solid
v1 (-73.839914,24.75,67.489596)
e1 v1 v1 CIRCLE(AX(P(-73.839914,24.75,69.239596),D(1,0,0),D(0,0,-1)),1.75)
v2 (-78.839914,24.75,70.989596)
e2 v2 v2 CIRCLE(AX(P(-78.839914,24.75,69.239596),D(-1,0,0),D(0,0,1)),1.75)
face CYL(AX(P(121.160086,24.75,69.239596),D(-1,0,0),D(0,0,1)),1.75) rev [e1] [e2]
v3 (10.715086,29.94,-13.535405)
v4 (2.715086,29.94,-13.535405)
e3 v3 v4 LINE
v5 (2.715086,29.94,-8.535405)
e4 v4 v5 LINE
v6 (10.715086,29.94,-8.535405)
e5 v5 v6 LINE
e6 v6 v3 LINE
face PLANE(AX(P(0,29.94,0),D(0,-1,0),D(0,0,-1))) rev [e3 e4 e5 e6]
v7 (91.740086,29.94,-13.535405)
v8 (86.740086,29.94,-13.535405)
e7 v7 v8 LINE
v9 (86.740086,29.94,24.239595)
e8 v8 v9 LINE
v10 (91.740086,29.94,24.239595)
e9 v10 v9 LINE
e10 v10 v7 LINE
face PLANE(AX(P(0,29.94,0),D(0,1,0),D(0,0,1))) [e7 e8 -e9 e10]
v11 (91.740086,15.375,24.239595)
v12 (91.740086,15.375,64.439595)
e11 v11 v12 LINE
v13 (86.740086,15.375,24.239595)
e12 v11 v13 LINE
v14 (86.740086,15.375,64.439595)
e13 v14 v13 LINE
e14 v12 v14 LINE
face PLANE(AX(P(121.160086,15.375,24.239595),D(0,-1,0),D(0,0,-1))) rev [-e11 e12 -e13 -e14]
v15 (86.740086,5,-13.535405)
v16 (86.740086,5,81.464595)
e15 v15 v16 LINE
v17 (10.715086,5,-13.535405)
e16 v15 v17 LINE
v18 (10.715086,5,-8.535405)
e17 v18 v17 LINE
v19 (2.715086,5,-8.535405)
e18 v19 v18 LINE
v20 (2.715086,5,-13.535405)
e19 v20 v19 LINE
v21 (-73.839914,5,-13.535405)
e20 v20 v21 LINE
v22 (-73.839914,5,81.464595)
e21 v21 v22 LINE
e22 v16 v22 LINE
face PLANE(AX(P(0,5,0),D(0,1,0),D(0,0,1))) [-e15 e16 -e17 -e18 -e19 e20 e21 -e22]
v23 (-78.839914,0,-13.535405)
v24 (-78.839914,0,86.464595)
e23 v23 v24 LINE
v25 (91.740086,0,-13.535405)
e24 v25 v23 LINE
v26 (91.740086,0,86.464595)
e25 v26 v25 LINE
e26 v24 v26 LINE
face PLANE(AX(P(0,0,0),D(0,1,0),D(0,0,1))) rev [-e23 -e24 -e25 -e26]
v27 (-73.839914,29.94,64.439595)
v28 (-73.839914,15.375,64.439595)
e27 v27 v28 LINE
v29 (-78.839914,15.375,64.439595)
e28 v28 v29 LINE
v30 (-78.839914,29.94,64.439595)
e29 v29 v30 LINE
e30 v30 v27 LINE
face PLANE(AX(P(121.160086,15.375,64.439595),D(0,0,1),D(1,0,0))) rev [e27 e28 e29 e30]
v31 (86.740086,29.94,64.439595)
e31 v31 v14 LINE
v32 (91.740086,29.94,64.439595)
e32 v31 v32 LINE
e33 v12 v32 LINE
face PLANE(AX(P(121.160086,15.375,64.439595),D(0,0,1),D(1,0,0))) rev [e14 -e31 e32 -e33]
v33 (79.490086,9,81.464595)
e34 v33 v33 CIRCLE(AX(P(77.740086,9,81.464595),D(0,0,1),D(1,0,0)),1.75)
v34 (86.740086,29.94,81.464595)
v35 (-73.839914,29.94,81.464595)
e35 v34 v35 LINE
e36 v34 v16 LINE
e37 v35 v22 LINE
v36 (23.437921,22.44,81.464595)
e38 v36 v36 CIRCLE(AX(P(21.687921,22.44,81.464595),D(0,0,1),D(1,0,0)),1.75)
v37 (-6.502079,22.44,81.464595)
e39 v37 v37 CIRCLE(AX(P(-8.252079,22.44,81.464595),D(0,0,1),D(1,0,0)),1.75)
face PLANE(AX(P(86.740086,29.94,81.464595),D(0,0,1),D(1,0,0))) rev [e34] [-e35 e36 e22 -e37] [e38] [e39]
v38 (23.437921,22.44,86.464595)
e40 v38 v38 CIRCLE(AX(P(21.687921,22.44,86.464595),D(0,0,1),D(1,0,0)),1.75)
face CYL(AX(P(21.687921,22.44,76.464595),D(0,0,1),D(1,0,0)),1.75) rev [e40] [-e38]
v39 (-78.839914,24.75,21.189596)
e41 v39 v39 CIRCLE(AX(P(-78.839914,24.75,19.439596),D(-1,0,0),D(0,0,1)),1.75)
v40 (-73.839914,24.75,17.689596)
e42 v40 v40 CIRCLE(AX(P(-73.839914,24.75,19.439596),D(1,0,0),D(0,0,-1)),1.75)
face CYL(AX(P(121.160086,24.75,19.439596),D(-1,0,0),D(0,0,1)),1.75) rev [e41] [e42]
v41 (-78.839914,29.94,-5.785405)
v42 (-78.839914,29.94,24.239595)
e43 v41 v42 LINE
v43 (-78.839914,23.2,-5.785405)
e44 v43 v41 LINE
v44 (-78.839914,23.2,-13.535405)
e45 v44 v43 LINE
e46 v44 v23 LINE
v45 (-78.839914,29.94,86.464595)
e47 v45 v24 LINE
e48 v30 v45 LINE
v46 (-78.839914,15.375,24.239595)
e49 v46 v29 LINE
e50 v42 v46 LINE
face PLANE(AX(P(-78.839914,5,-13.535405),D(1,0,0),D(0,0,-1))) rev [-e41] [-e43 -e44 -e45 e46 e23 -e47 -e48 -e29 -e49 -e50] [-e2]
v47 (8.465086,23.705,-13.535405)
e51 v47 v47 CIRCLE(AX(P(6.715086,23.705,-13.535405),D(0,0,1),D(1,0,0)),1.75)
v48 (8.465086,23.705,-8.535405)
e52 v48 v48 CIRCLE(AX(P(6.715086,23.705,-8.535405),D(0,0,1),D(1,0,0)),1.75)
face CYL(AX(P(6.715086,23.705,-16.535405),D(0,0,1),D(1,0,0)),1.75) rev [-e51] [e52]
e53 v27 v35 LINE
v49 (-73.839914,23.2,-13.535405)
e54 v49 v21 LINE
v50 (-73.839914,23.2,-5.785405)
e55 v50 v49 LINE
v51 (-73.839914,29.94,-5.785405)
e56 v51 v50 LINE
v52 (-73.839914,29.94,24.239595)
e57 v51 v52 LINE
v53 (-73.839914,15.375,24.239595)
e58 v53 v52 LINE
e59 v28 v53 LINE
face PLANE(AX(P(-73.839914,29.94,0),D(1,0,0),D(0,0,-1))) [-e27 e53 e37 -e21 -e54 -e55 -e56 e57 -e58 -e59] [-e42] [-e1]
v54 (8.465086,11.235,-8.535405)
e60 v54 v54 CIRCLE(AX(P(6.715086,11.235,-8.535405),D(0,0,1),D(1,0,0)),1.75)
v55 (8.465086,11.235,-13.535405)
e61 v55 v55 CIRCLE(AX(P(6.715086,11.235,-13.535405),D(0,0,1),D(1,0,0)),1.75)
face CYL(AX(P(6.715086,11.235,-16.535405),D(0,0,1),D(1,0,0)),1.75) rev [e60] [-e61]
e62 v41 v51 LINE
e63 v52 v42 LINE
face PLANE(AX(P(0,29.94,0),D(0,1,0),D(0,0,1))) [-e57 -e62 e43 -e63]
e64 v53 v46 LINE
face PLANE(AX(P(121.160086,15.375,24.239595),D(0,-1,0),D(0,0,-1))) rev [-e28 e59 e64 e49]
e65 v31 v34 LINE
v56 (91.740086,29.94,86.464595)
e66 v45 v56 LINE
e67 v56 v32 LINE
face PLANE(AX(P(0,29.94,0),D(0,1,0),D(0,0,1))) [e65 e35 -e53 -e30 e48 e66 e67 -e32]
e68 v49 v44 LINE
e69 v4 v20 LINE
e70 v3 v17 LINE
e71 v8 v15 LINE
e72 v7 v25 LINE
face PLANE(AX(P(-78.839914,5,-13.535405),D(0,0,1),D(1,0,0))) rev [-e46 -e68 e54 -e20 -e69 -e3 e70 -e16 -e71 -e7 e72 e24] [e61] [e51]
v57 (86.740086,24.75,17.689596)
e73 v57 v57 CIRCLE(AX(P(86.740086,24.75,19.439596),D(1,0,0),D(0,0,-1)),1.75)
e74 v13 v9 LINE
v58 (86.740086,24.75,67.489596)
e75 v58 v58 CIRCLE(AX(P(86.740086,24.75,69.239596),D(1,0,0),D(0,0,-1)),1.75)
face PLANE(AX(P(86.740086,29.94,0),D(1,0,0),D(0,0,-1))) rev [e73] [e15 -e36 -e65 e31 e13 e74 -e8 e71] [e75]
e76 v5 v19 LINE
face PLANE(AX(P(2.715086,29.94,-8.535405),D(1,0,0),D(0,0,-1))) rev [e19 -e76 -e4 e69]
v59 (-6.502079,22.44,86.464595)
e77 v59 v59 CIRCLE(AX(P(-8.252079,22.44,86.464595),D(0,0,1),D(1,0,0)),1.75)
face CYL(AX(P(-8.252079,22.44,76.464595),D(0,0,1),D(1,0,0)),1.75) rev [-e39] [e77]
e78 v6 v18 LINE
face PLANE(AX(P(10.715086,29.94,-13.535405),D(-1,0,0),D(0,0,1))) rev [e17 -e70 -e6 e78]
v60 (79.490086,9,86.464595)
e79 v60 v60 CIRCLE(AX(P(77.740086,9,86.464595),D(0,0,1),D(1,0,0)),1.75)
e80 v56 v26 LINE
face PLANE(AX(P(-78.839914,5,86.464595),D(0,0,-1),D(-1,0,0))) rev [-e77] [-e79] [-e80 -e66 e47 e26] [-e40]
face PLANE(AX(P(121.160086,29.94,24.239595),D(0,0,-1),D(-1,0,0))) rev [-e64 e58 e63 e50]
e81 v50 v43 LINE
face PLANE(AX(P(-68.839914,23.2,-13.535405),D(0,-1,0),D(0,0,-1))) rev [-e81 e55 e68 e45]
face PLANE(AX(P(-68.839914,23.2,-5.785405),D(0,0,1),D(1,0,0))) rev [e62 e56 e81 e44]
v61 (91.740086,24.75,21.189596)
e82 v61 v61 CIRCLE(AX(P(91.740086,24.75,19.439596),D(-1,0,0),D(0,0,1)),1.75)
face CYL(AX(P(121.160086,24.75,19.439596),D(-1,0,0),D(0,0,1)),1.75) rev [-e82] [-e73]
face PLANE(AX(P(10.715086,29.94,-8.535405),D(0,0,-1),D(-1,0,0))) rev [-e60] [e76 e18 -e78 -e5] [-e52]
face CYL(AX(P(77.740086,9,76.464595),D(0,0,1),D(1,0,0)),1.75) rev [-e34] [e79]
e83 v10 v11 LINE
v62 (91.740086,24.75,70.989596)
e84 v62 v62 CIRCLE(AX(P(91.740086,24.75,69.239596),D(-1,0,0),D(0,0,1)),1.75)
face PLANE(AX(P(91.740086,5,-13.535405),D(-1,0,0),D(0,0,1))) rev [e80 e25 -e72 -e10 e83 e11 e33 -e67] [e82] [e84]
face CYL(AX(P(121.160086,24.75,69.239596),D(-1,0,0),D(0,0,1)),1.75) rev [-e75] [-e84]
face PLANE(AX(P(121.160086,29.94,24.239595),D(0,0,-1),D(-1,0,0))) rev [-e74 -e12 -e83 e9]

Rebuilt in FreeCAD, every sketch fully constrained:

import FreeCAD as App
import Part
import Sketcher

V = App.Vector
Q = App.Units.Quantity


def add_polygon(sketch, points):
    """Adds a closed chain of lines whose ends are joined by coincident constraints."""
    first, n = sketch.GeometryCount, len(points)
    for a, b in zip(points, points[1:] + points[:1]):
        sketch.addGeometry(Part.LineSegment(App.Vector(*a, 0), App.Vector(*b, 0)), False)
    for i in range(n):
        sketch.addConstraint(Sketcher.Constraint("Coincident", first + i, 2, first + (i + 1) % n, 1))

doc = App.newDocument("Part")
body = doc.addObject("PartDesign::Body", "Body")

# Sketch on XZ plane
sketch1 = body.newObject("Sketcher::SketchObject", "Sketch")
sketch1.AttachmentSupport = (doc.getObject("XZ_Plane"), [""])
sketch1.MapMode = "FlatFace"
add_polygon(sketch1, [(-79, -14), (-79, 86), (92, 86), (92, -14)])  # lines 0-3
sketch1.addConstraint(Sketcher.Constraint("Vertical", 0))
sketch1.addConstraint(Sketcher.Constraint("Horizontal", 1))
sketch1.addConstraint(Sketcher.Constraint("Vertical", 2))
sketch1.addConstraint(Sketcher.Constraint("Horizontal", 3))
sketch1.addConstraint(Sketcher.Constraint("DistanceY", 0, 1, 0, 2, Q("100 mm")))
sketch1.addConstraint(Sketcher.Constraint("DistanceX", 1, 1, 1, 2, Q("170.58 mm")))
sketch1.addConstraint(Sketcher.Constraint("DistanceX", 0, 2, -1, 1, Q("78.839914 mm")))
sketch1.addConstraint(Sketcher.Constraint("DistanceY", -1, 1, 0, 2, Q("86.464595 mm")))
pad1 = body.newObject("PartDesign::Pad", "Pad")
pad1.Profile = sketch1
pad1.Length = 5
pad1.Reversed = True

# Sketch on XZ plane
sketch2 = body.newObject("Sketcher::SketchObject", "Sketch001")
sketch2.AttachmentSupport = (doc.getObject("XZ_Plane"), [""])
sketch2.MapMode = "FlatFace"
sketch2.AttachmentOffset = App.Placement(V(0, 0, -5), App.Rotation())
add_polygon(sketch2, [(87, -14), (87, 86), (92, 86), (92, -14)])  # lines 0-3
add_polygon(sketch2, [(-79, -14), (-79, 86), (-74, 86), (-74, -14)])  # lines 4-7
sketch2.addConstraint(Sketcher.Constraint("Vertical", 0))
sketch2.addConstraint(Sketcher.Constraint("Horizontal", 1))
sketch2.addConstraint(Sketcher.Constraint("Vertical", 2))
sketch2.addConstraint(Sketcher.Constraint("Horizontal", 3))
sketch2.addConstraint(Sketcher.Constraint("Vertical", 4))
sketch2.addConstraint(Sketcher.Constraint("Horizontal", 5))
sketch2.addConstraint(Sketcher.Constraint("Vertical", 6))
sketch2.addConstraint(Sketcher.Constraint("Horizontal", 7))
sketch2.addConstraint(Sketcher.Constraint("Horizontal", 1, 2, 4, 2))
sketch2.addConstraint(Sketcher.Constraint("Horizontal", 3, 2, 6, 2))
sketch2.addConstraint(Sketcher.Constraint("Equal", 3, 5))
sketch2.addConstraint(Sketcher.Constraint("DistanceX", 1, 1, 1, 2, Q("5 mm")))
sketch2.addConstraint(Sketcher.Constraint("DistanceY", 0, 1, 0, 2, Q("100 mm")))
sketch2.addConstraint(Sketcher.Constraint("DistanceX", 4, 2, 0, 2, Q("165.58 mm")))
sketch2.addConstraint(Sketcher.Constraint("DistanceX", -1, 1, 0, 2, Q("86.740086 mm")))
sketch2.addConstraint(Sketcher.Constraint("DistanceY", -1, 1, 0, 2, Q("86.464595 mm")))
pad2 = body.newObject("PartDesign::Pad", "Pad001")
pad2.Profile = sketch2
pad2.Length = 24.94
pad2.Reversed = True

# Sketch on XZ plane
sketch3 = body.newObject("Sketcher::SketchObject", "Sketch002")
sketch3.AttachmentSupport = (doc.getObject("XZ_Plane"), [""])
sketch3.MapMode = "FlatFace"
sketch3.AttachmentOffset = App.Placement(V(0, 0, -5), App.Rotation())
add_polygon(sketch3, [(-74, 81), (-74, 86), (87, 86), (87, 81)])  # lines 0-3
sketch3.addConstraint(Sketcher.Constraint("Vertical", 0))
sketch3.addConstraint(Sketcher.Constraint("Horizontal", 1))
sketch3.addConstraint(Sketcher.Constraint("Vertical", 2))
sketch3.addConstraint(Sketcher.Constraint("Horizontal", 3))
sketch3.addConstraint(Sketcher.Constraint("DistanceY", 0, 1, 0, 2, Q("5 mm")))
sketch3.addConstraint(Sketcher.Constraint("DistanceX", 1, 1, 1, 2, Q("160.58 mm")))
sketch3.addConstraint(Sketcher.Constraint("DistanceX", 0, 2, -1, 1, Q("73.839914 mm")))
sketch3.addConstraint(Sketcher.Constraint("DistanceY", -1, 1, 0, 2, Q("86.464595 mm")))
pad3 = body.newObject("PartDesign::Pad", "Pad002")
pad3.Profile = sketch3
pad3.Length = 24.94
pad3.Reversed = True

# Sketch on XZ plane
sketch4 = body.newObject("Sketcher::SketchObject", "Sketch003")
sketch4.AttachmentSupport = (doc.getObject("XZ_Plane"), [""])
sketch4.MapMode = "FlatFace"
sketch4.AttachmentOffset = App.Placement(V(0, 0, -5), App.Rotation())
add_polygon(sketch4, [(3, -14), (3, -9), (11, -9), (11, -14)])  # lines 0-3
sketch4.addConstraint(Sketcher.Constraint("Vertical", 0))
sketch4.addConstraint(Sketcher.Constraint("Horizontal", 1))
sketch4.addConstraint(Sketcher.Constraint("Vertical", 2))
sketch4.addConstraint(Sketcher.Constraint("Horizontal", 3))
sketch4.addConstraint(Sketcher.Constraint("DistanceX", 1, 1, 1, 2, Q("8 mm")))
sketch4.addConstraint(Sketcher.Constraint("DistanceY", 0, 1, 0, 2, Q("5 mm")))
sketch4.addConstraint(Sketcher.Constraint("DistanceX", -1, 1, 0, 2, Q("2.715086 mm")))
sketch4.addConstraint(Sketcher.Constraint("DistanceY", 0, 2, -1, 1, Q("8.535405 mm")))
pad4 = body.newObject("PartDesign::Pad", "Pad003")
pad4.Profile = sketch4
pad4.Length = 24.94
pad4.Reversed = True

# Sketch on XY plane
sketch5 = body.newObject("Sketcher::SketchObject", "Sketch004")
sketch5.AttachmentSupport = (doc.getObject("XY_Plane"), [""])
sketch5.MapMode = "FlatFace"
sketch5.AttachmentOffset = App.Placement(V(0, 0, -8.535405), App.Rotation())
sketch5.addGeometry(Part.Circle(V(6.7, 11.2, 0), V(0, 0, 1), 1.8), False)
sketch5.addGeometry(Part.Circle(V(6.7, 23.7, 0), V(0, 0, 1), 1.8), False)
sketch5.addConstraint(Sketcher.Constraint("Equal", 0, 1))
sketch5.addConstraint(Sketcher.Constraint("Vertical", 0, 3, 1, 3))
sketch5.addConstraint(Sketcher.Constraint("Diameter", 0, Q("3.5 mm")))
sketch5.addConstraint(Sketcher.Constraint("DistanceY", 0, 3, 1, 3, Q("12.47 mm")))
sketch5.addConstraint(Sketcher.Constraint("DistanceY", -1, 1, 0, 3, Q("11.235 mm")))
sketch5.addConstraint(Sketcher.Constraint("DistanceX", -1, 1, 0, 3, Q("6.715086 mm")))
pocket1 = body.newObject("PartDesign::Pocket", "Pocket")
pocket1.Profile = sketch5
pocket1.Length = 8

# Sketch on YZ plane
sketch6 = body.newObject("Sketcher::SketchObject", "Sketch005")
sketch6.AttachmentSupport = (doc.getObject("YZ_Plane"), [""])
sketch6.MapMode = "FlatFace"
sketch6.AttachmentOffset = App.Placement(V(0, 0, -78.839914), App.Rotation())
add_polygon(sketch6, [(30, -14), (23, -14), (23, -6), (30, -6)])  # lines 0-3
sketch6.addConstraint(Sketcher.Constraint("Horizontal", 0))
sketch6.addConstraint(Sketcher.Constraint("Vertical", 1))
sketch6.addConstraint(Sketcher.Constraint("Horizontal", 2))
sketch6.addConstraint(Sketcher.Constraint("Vertical", 3))
sketch6.addConstraint(Sketcher.Constraint("DistanceX", 0, 2, 0, 1, Q("6.74 mm")))
sketch6.addConstraint(Sketcher.Constraint("DistanceY", 1, 1, 1, 2, Q("7.75 mm")))
sketch6.addConstraint(Sketcher.Constraint("DistanceX", -1, 1, 0, 2, Q("23.2 mm")))
sketch6.addConstraint(Sketcher.Constraint("DistanceY", 0, 2, -1, 1, Q("13.535405 mm")))
pocket2 = body.newObject("PartDesign::Pocket", "Pocket001")
pocket2.Profile = sketch6
pocket2.Length = 10
pocket2.Reversed = True

# Sketch on YZ plane
sketch7 = body.newObject("Sketcher::SketchObject", "Sketch006")
sketch7.AttachmentSupport = (doc.getObject("YZ_Plane"), [""])
sketch7.MapMode = "FlatFace"
sketch7.AttachmentOffset = App.Placement(V(0, 0, -78.839914), App.Rotation())
add_polygon(sketch7, [(30, 24), (15, 24), (15, 64), (30, 64)])  # lines 0-3
sketch7.addConstraint(Sketcher.Constraint("Horizontal", 0))
sketch7.addConstraint(Sketcher.Constraint("Vertical", 1))
sketch7.addConstraint(Sketcher.Constraint("Horizontal", 2))
sketch7.addConstraint(Sketcher.Constraint("Vertical", 3))
sketch7.addConstraint(Sketcher.Constraint("DistanceY", 1, 1, 1, 2, Q("40.2 mm")))
sketch7.addConstraint(Sketcher.Constraint("DistanceX", 0, 2, 0, 1, Q("14.565 mm")))
sketch7.addConstraint(Sketcher.Constraint("DistanceX", -1, 1, 2, 2, Q("29.94 mm")))
sketch7.addConstraint(Sketcher.Constraint("DistanceY", -1, 1, 0, 2, Q("24.239595 mm")))
pocket3 = body.newObject("PartDesign::Pocket", "Pocket002")
pocket3.Profile = sketch7
pocket3.Length = 200
pocket3.Reversed = True

# Sketch on YZ plane
sketch8 = body.newObject("Sketcher::SketchObject", "Sketch007")
sketch8.AttachmentSupport = (doc.getObject("YZ_Plane"), [""])
sketch8.MapMode = "FlatFace"
sketch8.AttachmentOffset = App.Placement(V(0, 0, -78.839914), App.Rotation())
sketch8.addGeometry(Part.Circle(V(24.8, 69.2, 0), V(0, 0, 1), 1.8), False)
sketch8.addGeometry(Part.Circle(V(24.8, 19.4, 0), V(0, 0, 1), 1.8), False)
sketch8.addConstraint(Sketcher.Constraint("Equal", 0, 1))
sketch8.addConstraint(Sketcher.Constraint("Vertical", 0, 3, 1, 3))
sketch8.addConstraint(Sketcher.Constraint("Diameter", 0, Q("3.5 mm")))
sketch8.addConstraint(Sketcher.Constraint("DistanceY", 1, 3, 0, 3, Q("49.8 mm")))
sketch8.addConstraint(Sketcher.Constraint("DistanceX", -1, 1, 0, 3, Q("24.75 mm")))
sketch8.addConstraint(Sketcher.Constraint("DistanceY", -1, 1, 0, 3, Q("69.239596 mm")))
pocket4 = body.newObject("PartDesign::Pocket", "Pocket003")
pocket4.Profile = sketch8
pocket4.Length = 200
pocket4.Reversed = True

# Sketch on XY plane
sketch9 = body.newObject("Sketcher::SketchObject", "Sketch008")
sketch9.AttachmentSupport = (doc.getObject("XY_Plane"), [""])
sketch9.MapMode = "FlatFace"
sketch9.AttachmentOffset = App.Placement(V(0, 0, 86.464595), App.Rotation())
sketch9.addGeometry(Part.Circle(V(21.7, 22.4, 0), V(0, 0, 1), 1.8), False)
sketch9.addGeometry(Part.Circle(V(-8.3, 22.4, 0), V(0, 0, 1), 1.8), False)
sketch9.addGeometry(Part.Circle(V(77.7, 9, 0), V(0, 0, 1), 1.8), False)
sketch9.addConstraint(Sketcher.Constraint("Equal", 0, 1))
sketch9.addConstraint(Sketcher.Constraint("Equal", 1, 2))
sketch9.addConstraint(Sketcher.Constraint("Horizontal", 0, 3, 1, 3))
sketch9.addConstraint(Sketcher.Constraint("Diameter", 0, Q("3.5 mm")))
sketch9.addConstraint(Sketcher.Constraint("DistanceY", -1, 1, 2, 3, Q("9 mm")))
sketch9.addConstraint(Sketcher.Constraint("DistanceY", -1, 1, 0, 3, Q("22.44 mm")))
sketch9.addConstraint(Sketcher.Constraint("DistanceX", 1, 3, 0, 3, Q("29.94 mm")))
sketch9.addConstraint(Sketcher.Constraint("DistanceX", -1, 1, 0, 3, Q("21.687921 mm")))
sketch9.addConstraint(Sketcher.Constraint("DistanceX", -1, 1, 2, 3, Q("77.740086 mm")))
pocket5 = body.newObject("PartDesign::Pocket", "Pocket004")
pocket5.Profile = sketch9
pocket5.Length = 10

doc.recompute()
